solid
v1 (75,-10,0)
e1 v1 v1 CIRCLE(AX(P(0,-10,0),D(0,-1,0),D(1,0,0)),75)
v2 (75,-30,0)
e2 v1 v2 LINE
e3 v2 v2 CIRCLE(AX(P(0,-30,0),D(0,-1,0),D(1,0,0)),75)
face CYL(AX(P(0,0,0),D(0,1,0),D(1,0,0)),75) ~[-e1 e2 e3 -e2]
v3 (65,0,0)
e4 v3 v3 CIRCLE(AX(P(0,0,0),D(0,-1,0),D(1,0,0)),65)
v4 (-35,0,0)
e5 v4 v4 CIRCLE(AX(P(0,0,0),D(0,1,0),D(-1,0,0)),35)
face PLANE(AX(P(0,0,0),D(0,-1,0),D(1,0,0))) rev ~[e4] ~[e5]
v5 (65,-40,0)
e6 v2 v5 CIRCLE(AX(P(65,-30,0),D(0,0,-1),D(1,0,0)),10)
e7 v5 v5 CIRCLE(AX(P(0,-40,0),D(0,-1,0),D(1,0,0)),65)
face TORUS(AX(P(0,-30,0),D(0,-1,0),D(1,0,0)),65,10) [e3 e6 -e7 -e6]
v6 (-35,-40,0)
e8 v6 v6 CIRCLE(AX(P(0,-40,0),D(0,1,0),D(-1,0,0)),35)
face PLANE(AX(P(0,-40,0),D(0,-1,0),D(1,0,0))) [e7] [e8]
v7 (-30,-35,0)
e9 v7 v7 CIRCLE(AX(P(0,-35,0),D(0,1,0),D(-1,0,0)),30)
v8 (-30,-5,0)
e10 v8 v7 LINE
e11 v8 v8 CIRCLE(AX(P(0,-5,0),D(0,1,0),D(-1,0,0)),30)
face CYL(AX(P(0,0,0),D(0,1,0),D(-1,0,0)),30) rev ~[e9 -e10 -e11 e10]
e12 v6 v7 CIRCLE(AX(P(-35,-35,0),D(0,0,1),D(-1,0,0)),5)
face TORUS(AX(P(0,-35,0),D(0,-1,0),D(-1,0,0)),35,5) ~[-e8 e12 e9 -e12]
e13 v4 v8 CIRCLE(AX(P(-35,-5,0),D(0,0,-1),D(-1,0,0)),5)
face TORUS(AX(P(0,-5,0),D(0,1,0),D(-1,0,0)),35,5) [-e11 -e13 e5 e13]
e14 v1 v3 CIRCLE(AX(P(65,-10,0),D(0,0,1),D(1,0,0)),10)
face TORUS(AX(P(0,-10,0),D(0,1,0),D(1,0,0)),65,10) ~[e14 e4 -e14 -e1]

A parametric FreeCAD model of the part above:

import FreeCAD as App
import Part
import Sketcher
from FreeCAD import Vector


def edges_at(feature, points):
    """Names of the edges that pass closest to the given points."""
    edges = feature.Shape.Edges
    near = lambda p: min(range(len(edges)), key=lambda i: edges[i].distToShape(Part.Vertex(*p))[0])
    return sorted({f"Edge{near(p) + 1}" for p in points})

doc = App.newDocument("Part")
body = doc.addObject("PartDesign::Body", "Body")

# Sketch on XZ plane
sketch1 = doc.addObject("Sketcher::SketchObject", "Sketch")
body.addObject(sketch1)
sketch1.AttachmentSupport = (doc.XZ_Plane, [""])
sketch1.MapMode = "FlatFace"
sketch1.addGeometry(Part.Circle(Vector(0, 0, 0), Vector(0, 0, 1), 75), False)
sketch1.addConstraint(Sketcher.Constraint("Coincident", 0, 3, -1, 1))
sketch1.addConstraint(Sketcher.Constraint("Diameter", 0, 150.0))
pad1 = doc.addObject("PartDesign::Pad", "Pad")
body.addObject(pad1)
pad1.Profile = sketch1
pad1.Length = 40
doc.recompute()

fillet = doc.addObject("PartDesign::Fillet", "Fillet")
body.addObject(fillet)
fillet.Base = (pad1, edges_at(pad1, [(-75, -40, 0)]))
fillet.Radius = 10
doc.recompute()

fillet2 = doc.addObject("PartDesign::Fillet", "Fillet001")
body.addObject(fillet2)
fillet2.Base = (fillet, edges_at(fillet, [(-75, 0, 0)]))
fillet2.Radius = 10

# Sketch on XZ plane
sketch2 = doc.addObject("Sketcher::SketchObject", "Sketch001")
body.addObject(sketch2)
sketch2.AttachmentSupport = (doc.XZ_Plane, [""])
sketch2.MapMode = "FlatFace"
sketch2.addGeometry(Part.Circle(Vector(0, 0, 0), Vector(0, 0, 1), 30), False)
sketch2.addConstraint(Sketcher.Constraint("Coincident", 0, 3, -1, 1))
sketch2.addConstraint(Sketcher.Constraint("Diameter", 0, 60.0))
pocket1 = doc.addObject("PartDesign::Pocket", "Pocket")
body.addObject(pocket1)
pocket1.Profile = sketch2
pocket1.Length = 45
pocket1.Reversed = True
doc.recompute()

fillet3 = doc.addObject("PartDesign::Fillet", "Fillet002")
body.addObject(fillet3)
fillet3.Base = (pocket1, edges_at(pocket1, [(30, -40, 0), (30, 0, 0)]))
fillet3.Radius = 5

doc.recompute()
